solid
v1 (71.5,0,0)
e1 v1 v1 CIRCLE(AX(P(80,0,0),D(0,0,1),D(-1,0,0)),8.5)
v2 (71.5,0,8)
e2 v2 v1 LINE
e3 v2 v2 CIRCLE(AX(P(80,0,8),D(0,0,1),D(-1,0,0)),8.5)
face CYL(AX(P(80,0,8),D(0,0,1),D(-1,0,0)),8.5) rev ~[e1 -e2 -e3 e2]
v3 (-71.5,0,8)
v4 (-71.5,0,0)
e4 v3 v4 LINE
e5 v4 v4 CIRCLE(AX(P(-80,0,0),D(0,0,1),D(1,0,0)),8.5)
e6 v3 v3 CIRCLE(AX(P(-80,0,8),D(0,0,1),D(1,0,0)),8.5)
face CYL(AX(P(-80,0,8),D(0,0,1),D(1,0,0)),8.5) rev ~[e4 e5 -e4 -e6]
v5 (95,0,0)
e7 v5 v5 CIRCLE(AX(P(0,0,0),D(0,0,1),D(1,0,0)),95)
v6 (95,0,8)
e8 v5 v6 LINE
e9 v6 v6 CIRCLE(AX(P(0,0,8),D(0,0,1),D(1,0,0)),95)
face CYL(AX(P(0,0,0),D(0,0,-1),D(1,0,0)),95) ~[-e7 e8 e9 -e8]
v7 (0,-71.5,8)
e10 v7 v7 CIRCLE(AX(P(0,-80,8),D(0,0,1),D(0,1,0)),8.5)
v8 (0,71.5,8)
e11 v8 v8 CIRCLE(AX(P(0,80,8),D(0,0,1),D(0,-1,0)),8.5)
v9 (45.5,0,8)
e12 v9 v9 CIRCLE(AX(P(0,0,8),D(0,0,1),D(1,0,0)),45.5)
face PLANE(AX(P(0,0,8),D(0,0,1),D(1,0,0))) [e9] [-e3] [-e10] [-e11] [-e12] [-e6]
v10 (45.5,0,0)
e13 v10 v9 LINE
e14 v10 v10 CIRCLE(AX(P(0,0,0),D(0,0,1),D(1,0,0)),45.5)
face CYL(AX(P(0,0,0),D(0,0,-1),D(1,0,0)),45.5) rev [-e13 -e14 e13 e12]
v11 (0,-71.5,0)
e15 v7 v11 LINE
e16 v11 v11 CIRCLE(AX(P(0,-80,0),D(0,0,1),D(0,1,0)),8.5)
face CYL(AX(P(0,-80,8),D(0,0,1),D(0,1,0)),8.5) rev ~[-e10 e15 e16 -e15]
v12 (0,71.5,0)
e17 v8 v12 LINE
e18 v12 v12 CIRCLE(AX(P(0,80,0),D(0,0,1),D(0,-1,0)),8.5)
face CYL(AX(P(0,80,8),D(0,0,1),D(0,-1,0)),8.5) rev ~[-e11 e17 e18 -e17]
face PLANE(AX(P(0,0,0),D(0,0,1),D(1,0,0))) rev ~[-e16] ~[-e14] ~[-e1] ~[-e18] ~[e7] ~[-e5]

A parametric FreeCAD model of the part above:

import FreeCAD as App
import Part
import Sketcher
from FreeCAD import Vector

doc = App.newDocument("Part")
body = doc.addObject("PartDesign::Body", "Body")

# Sketch on XY plane
sketch1 = body.newObject("Sketcher::SketchObject", "Sketch")
sketch1.AttachmentSupport = (doc.getObject("XY_Plane"), [""])
sketch1.MapMode = "FlatFace"
sketch1.addGeometry(Part.Circle(Vector(0, 0, 0), Vector(0, 0, 1), 95), False)
sketch1.addGeometry(Part.Circle(Vector(0, 0, 0), Vector(0, 0, 1), 46), False)
sketch1.addConstraint(Sketcher.Constraint("Coincident", 0, 3, -1, 1))
sketch1.addConstraint(Sketcher.Constraint("Coincident", 1, 3, -1, 1))
sketch1.addConstraint(Sketcher.Constraint("Diameter", 0, 190.0))
sketch1.addConstraint(Sketcher.Constraint("Diameter", 1, 91.0))
pad1 = body.newObject("PartDesign::Pad", "Pad")
pad1.Profile = sketch1
pad1.Length = 8

# Sketch on XY plane
sketch2 = body.newObject("Sketcher::SketchObject", "Sketch001")
sketch2.AttachmentSupport = (doc.getObject("XY_Plane"), [""])
sketch2.MapMode = "FlatFace"
sketch2.AttachmentOffset = App.Placement(Vector(0, 0, 8), App.Rotation())
sketch2.addGeometry(Part.Circle(Vector(-80, 0, 0), Vector(0, 0, 1), 8), False)
sketch2.addConstraint(Sketcher.Constraint("PointOnObject", 0, 3, -1))
sketch2.addConstraint(Sketcher.Constraint("Diameter", 0, 17.0))
sketch2.addConstraint(Sketcher.Constraint("DistanceX", 0, 3, -1, 1, 80.0))
pocket1 = body.newObject("PartDesign::Pocket", "Pocket")
pocket1.Profile = sketch2
pocket1.Length = 8
doc.recompute()

polarpattern = body.newObject("PartDesign::PolarPattern", "PolarPattern")
polarpattern.Originals = [pocket1]
polarpattern.Axis = (doc.getObject("Z_Axis"), [""])
polarpattern.Angle = 360
polarpattern.Occurrences = 4
body.Tip = polarpattern

doc.recompute()
